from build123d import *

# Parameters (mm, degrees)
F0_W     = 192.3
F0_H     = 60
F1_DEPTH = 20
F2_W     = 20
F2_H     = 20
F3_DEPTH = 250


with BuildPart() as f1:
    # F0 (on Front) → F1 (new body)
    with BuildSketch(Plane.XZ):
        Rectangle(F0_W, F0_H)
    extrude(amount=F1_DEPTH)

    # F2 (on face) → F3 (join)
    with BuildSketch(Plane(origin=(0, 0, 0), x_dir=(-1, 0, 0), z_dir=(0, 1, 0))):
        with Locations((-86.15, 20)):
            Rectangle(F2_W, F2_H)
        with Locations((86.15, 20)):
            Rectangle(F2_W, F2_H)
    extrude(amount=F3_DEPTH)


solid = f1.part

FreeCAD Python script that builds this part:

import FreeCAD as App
import Part
import Sketcher
from FreeCAD import Vector
Q = App.Units.Quantity

doc = App.newDocument("Part")
body = doc.addObject("PartDesign::Body", "Body")

# Sketch on XZ plane
sketch1 = body.newObject("Sketcher::SketchObject", "Sketch")
sketch1.AttachmentSupport = (doc.getObject("XZ_Plane"), [""])
sketch1.MapMode = "FlatFace"
sketch1.addGeometry([
    Part.LineSegment(Vector(-96, 30, 0), Vector(-96, -30, 0)),
    Part.LineSegment(Vector(-96, -30, 0), Vector(96, -30, 0)),
    Part.LineSegment(Vector(96, -30, 0), Vector(96, 30, 0)),
    Part.LineSegment(Vector(96, 30, 0), Vector(-96, 30, 0)),
], False)
sketch1.addConstraint([
    Sketcher.Constraint("Coincident", 0, 2, 1, 1),
    Sketcher.Constraint("Coincident", 1, 2, 2, 1),
    Sketcher.Constraint("Coincident", 2, 2, 3, 1),
    Sketcher.Constraint("Coincident", 3, 2, 0, 1),
    Sketcher.Constraint("Vertical", 0),
    Sketcher.Constraint("Horizontal", 1),
    Sketcher.Constraint("Vertical", 2),
    Sketcher.Constraint("Horizontal", 3),
    Sketcher.Constraint("Symmetric", 0, 2, 2, 2, -1, 1),
    Sketcher.Constraint("DistanceY", 0, 2, 0, 1, Q("60 mm")),
    Sketcher.Constraint("DistanceX", 1, 1, 1, 2, Q("192.3 mm")),
])
pad1 = body.newObject("PartDesign::Pad", "Pad")
pad1.Profile = sketch1
pad1.Length = 20

# Sketch on XZ plane
sketch2 = body.newObject("Sketcher::SketchObject", "Sketch001")
sketch2.AttachmentSupport = (doc.getObject("XZ_Plane"), [""])
sketch2.MapMode = "FlatFace"
sketch2.addGeometry([
    Part.LineSegment(Vector(96, 30, 0), Vector(96, 10, 0)),  # 0
    Part.LineSegment(Vector(96, 10, 0), Vector(76, 10, 0)),  # 1
    Part.LineSegment(Vector(76, 10, 0), Vector(76, 30, 0)),  # 2
    Part.LineSegment(Vector(76, 30, 0), Vector(96, 30, 0)),  # 3
    Part.LineSegment(Vector(-76, 30, 0), Vector(-76, 10, 0)),  # 4
    Part.LineSegment(Vector(-76, 10, 0), Vector(-96, 10, 0)),  # 5
    Part.LineSegment(Vector(-96, 10, 0), Vector(-96, 30, 0)),  # 6
    Part.LineSegment(Vector(-96, 30, 0), Vector(-76, 30, 0)),  # 7
], False)
sketch2.addConstraint([
    Sketcher.Constraint("Coincident", 0, 2, 1, 1),
    Sketcher.Constraint("Coincident", 1, 2, 2, 1),
    Sketcher.Constraint("Coincident", 2, 2, 3, 1),
    Sketcher.Constraint("Coincident", 3, 2, 0, 1),
    Sketcher.Constraint("Coincident", 4, 2, 5, 1),
    Sketcher.Constraint("Coincident", 5, 2, 6, 1),
    Sketcher.Constraint("Coincident", 6, 2, 7, 1),
    Sketcher.Constraint("Coincident", 7, 2, 4, 1),
    Sketcher.Constraint("Vertical", 0),
    Sketcher.Constraint("Horizontal", 1),
    Sketcher.Constraint("Vertical", 2),
    Sketcher.Constraint("Horizontal", 3),
    Sketcher.Constraint("Vertical", 4),
    Sketcher.Constraint("Horizontal", 5),
    Sketcher.Constraint("Vertical", 6),
    Sketcher.Constraint("Horizontal", 7),
    Sketcher.Constraint("Symmetric", 1, 2, 4, 2, -2),
    Sketcher.Constraint("Symmetric", 3, 2, 6, 2, -2),
    Sketcher.Constraint("Equal", 7, 0),
    Sketcher.Constraint("DistanceX", 1, 2, 1, 1, Q("20 mm")),
    Sketcher.Constraint("DistanceY", -1, 1, 0, 2, Q("10 mm")),
    Sketcher.Constraint("DistanceX", 4, 2, 1, 2, Q("152.3 mm")),
])
pad2 = body.newObject("PartDesign::Pad", "Pad001")
pad2.Profile = sketch2
pad2.Length = 250
pad2.Reversed = True

doc.recompute()
